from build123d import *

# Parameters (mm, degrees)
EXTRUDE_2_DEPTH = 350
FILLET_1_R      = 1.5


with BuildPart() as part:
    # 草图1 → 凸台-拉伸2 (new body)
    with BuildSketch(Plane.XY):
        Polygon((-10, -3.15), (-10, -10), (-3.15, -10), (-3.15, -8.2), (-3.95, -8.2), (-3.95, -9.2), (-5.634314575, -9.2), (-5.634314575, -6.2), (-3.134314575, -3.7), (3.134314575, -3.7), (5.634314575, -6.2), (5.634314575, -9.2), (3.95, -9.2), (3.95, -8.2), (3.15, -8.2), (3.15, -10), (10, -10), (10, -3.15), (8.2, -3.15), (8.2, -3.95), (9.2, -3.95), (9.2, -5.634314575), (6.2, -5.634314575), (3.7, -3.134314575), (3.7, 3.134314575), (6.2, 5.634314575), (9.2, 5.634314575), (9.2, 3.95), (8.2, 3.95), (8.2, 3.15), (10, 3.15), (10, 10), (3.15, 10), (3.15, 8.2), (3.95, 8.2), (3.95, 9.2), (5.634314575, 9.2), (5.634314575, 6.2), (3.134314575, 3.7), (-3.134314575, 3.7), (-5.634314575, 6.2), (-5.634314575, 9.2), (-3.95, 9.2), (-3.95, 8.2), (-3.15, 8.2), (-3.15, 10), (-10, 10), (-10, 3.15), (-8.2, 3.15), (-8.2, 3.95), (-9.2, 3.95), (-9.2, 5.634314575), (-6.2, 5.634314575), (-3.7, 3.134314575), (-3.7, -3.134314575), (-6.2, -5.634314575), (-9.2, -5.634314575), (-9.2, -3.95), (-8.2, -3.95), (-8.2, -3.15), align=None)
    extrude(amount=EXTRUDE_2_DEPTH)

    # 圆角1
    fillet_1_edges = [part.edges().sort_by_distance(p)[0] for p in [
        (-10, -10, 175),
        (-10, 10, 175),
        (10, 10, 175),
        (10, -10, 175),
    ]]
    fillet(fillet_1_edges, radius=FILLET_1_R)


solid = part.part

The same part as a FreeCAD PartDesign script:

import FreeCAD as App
import Part
import Sketcher

V = App.Vector


def edges_at(feature, points):
    """Names of the edges that pass closest to the given points."""
    edges = feature.Shape.Edges
    near = lambda p: min(range(len(edges)), key=lambda i: edges[i].distToShape(Part.Vertex(*p))[0])
    return sorted({f"Edge{near(p) + 1}" for p in points})

doc = App.newDocument("Part")
body = doc.addObject("PartDesign::Body", "Body")

# Sketch on XY plane
sketch1 = body.newObject("Sketcher::SketchObject", "Sketch")
sketch1.AttachmentSupport = (doc.getObject("XY_Plane"), [""])
sketch1.MapMode = "FlatFace"
sketch1.addGeometry(Part.LineSegment(V(-10, -3.15, 0), V(-10, -10, 0)), False)
sketch1.addGeometry(Part.LineSegment(V(-10, -10, 0), V(-3.15, -10, 0)), False)
sketch1.addGeometry(Part.LineSegment(V(-3.15, -10, 0), V(-3.15, -8.2, 0)), False)
sketch1.addGeometry(Part.LineSegment(V(-3.15, -8.2, 0), V(-3.95, -8.2, 0)), False)
sketch1.addGeometry(Part.LineSegment(V(-3.95, -8.2, 0), V(-3.95, -9.2, 0)), False)
sketch1.addGeometry(Part.LineSegment(V(-3.95, -9.2, 0), V(-5.634315, -9.2, 0)), False)
sketch1.addGeometry(Part.LineSegment(V(-5.634315, -9.2, 0), V(-5.634315, -6.2, 0)), False)
sketch1.addGeometry(Part.LineSegment(V(-5.634315, -6.2, 0), V(-3.134315, -3.7, 0)), False)
sketch1.addGeometry(Part.LineSegment(V(-3.134315, -3.7, 0), V(3.134315, -3.7, 0)), False)
sketch1.addGeometry(Part.LineSegment(V(3.134315, -3.7, 0), V(5.634315, -6.2, 0)), False)
sketch1.addGeometry(Part.LineSegment(V(5.634315, -6.2, 0), V(5.634315, -9.2, 0)), False)
sketch1.addGeometry(Part.LineSegment(V(5.634315, -9.2, 0), V(3.95, -9.2, 0)), False)
sketch1.addGeometry(Part.LineSegment(V(3.95, -9.2, 0), V(3.95, -8.2, 0)), False)
sketch1.addGeometry(Part.LineSegment(V(3.95, -8.2, 0), V(3.15, -8.2, 0)), False)
sketch1.addGeometry(Part.LineSegment(V(3.15, -8.2, 0), V(3.15, -10, 0)), False)
sketch1.addGeometry(Part.LineSegment(V(3.15, -10, 0), V(10, -10, 0)), False)
sketch1.addGeometry(Part.LineSegment(V(10, -10, 0), V(10, -3.15, 0)), False)
sketch1.addGeometry(Part.LineSegment(V(10, -3.15, 0), V(8.2, -3.15, 0)), False)
sketch1.addGeometry(Part.LineSegment(V(8.2, -3.15, 0), V(8.2, -3.95, 0)), False)
sketch1.addGeometry(Part.LineSegment(V(8.2, -3.95, 0), V(9.2, -3.95, 0)), False)
sketch1.addGeometry(Part.LineSegment(V(9.2, -3.95, 0), V(9.2, -5.634315, 0)), False)
sketch1.addGeometry(Part.LineSegment(V(9.2, -5.634315, 0), V(6.2, -5.634315, 0)), False)
sketch1.addGeometry(Part.LineSegment(V(6.2, -5.634315, 0), V(3.7, -3.134315, 0)), False)
sketch1.addGeometry(Part.LineSegment(V(3.7, -3.134315, 0), V(3.7, 3.134315, 0)), False)
sketch1.addGeometry(Part.LineSegment(V(3.7, 3.134315, 0), V(6.2, 5.634315, 0)), False)
sketch1.addGeometry(Part.LineSegment(V(6.2, 5.634315, 0), V(9.2, 5.634315, 0)), False)
sketch1.addGeometry(Part.LineSegment(V(9.2, 5.634315, 0), V(9.2, 3.95, 0)), False)
sketch1.addGeometry(Part.LineSegment(V(9.2, 3.95, 0), V(8.2, 3.95, 0)), False)
sketch1.addGeometry(Part.LineSegment(V(8.2, 3.95, 0), V(8.2, 3.15, 0)), False)
sketch1.addGeometry(Part.LineSegment(V(8.2, 3.15, 0), V(10, 3.15, 0)), False)
sketch1.addGeometry(Part.LineSegment(V(10, 3.15, 0), V(10, 10, 0)), False)
sketch1.addGeometry(Part.LineSegment(V(10, 10, 0), V(3.15, 10, 0)), False)
sketch1.addGeometry(Part.LineSegment(V(3.15, 10, 0), V(3.15, 8.2, 0)), False)
sketch1.addGeometry(Part.LineSegment(V(3.15, 8.2, 0), V(3.95, 8.2, 0)), False)
sketch1.addGeometry(Part.LineSegment(V(3.95, 8.2, 0), V(3.95, 9.2, 0)), False)
sketch1.addGeometry(Part.LineSegment(V(3.95, 9.2, 0), V(5.634315, 9.2, 0)), False)
sketch1.addGeometry(Part.LineSegment(V(5.634315, 9.2, 0), V(5.634315, 6.2, 0)), False)
sketch1.addGeometry(Part.LineSegment(V(5.634315, 6.2, 0), V(3.134315, 3.7, 0)), False)
sketch1.addGeometry(Part.LineSegment(V(3.134315, 3.7, 0), V(-3.134315, 3.7, 0)), False)
sketch1.addGeometry(Part.LineSegment(V(-3.134315, 3.7, 0), V(-5.634315, 6.2, 0)), False)
sketch1.addGeometry(Part.LineSegment(V(-5.634315, 6.2, 0), V(-5.634315, 9.2, 0)), False)
sketch1.addGeometry(Part.LineSegment(V(-5.634315, 9.2, 0), V(-3.95, 9.2, 0)), False)
sketch1.addGeometry(Part.LineSegment(V(-3.95, 9.2, 0), V(-3.95, 8.2, 0)), False)
sketch1.addGeometry(Part.LineSegment(V(-3.95, 8.2, 0), V(-3.15, 8.2, 0)), False)
sketch1.addGeometry(Part.LineSegment(V(-3.15, 8.2, 0), V(-3.15, 10, 0)), False)
sketch1.addGeometry(Part.LineSegment(V(-3.15, 10, 0), V(-10, 10, 0)), False)
sketch1.addGeometry(Part.LineSegment(V(-10, 10, 0), V(-10, 3.15, 0)), False)
sketch1.addGeometry(Part.LineSegment(V(-10, 3.15, 0), V(-8.2, 3.15, 0)), False)
sketch1.addGeometry(Part.LineSegment(V(-8.2, 3.15, 0), V(-8.2, 3.95, 0)), False)
sketch1.addGeometry(Part.LineSegment(V(-8.2, 3.95, 0), V(-9.2, 3.95, 0)), False)
sketch1.addGeometry(Part.LineSegment(V(-9.2, 3.95, 0), V(-9.2, 5.634315, 0)), False)
sketch1.addGeometry(Part.LineSegment(V(-9.2, 5.634315, 0), V(-6.2, 5.634315, 0)), False)
sketch1.addGeometry(Part.LineSegment(V(-6.2, 5.634315, 0), V(-3.7, 3.134315, 0)), False)
sketch1.addGeometry(Part.LineSegment(V(-3.7, 3.134315, 0), V(-3.7, -3.134315, 0)), False)
sketch1.addGeometry(Part.LineSegment(V(-3.7, -3.134315, 0), V(-6.2, -5.634315, 0)), False)
sketch1.addGeometry(Part.LineSegment(V(-6.2, -5.634315, 0), V(-9.2, -5.634315, 0)), False)
sketch1.addGeometry(Part.LineSegment(V(-9.2, -5.634315, 0), V(-9.2, -3.95, 0)), False)
sketch1.addGeometry(Part.LineSegment(V(-9.2, -3.95, 0), V(-8.2, -3.95, 0)), False)
sketch1.addGeometry(Part.LineSegment(V(-8.2, -3.95, 0), V(-8.2, -3.15, 0)), False)
sketch1.addGeometry(Part.LineSegment(V(-8.2, -3.15, 0), V(-10, -3.15, 0)), False)
sketch1.addConstraint(Sketcher.Constraint("Coincident", 0, 2, 1, 1))
sketch1.addConstraint(Sketcher.Constraint("Coincident", 1, 2, 2, 1))
sketch1.addConstraint(Sketcher.Constraint("Coincident", 2, 2, 3, 1))
sketch1.addConstraint(Sketcher.Constraint("Coincident", 3, 2, 4, 1))
sketch1.addConstraint(Sketcher.Constraint("Coincident", 4, 2, 5, 1))
sketch1.addConstraint(Sketcher.Constraint("Coincident", 5, 2, 6, 1))
sketch1.addConstraint(Sketcher.Constraint("Coincident", 6, 2, 7, 1))
sketch1.addConstraint(Sketcher.Constraint("Coincident", 7, 2, 8, 1))
sketch1.addConstraint(Sketcher.Constraint("Coincident", 8, 2, 9, 1))
sketch1.addConstraint(Sketcher.Constraint("Coincident", 9, 2, 10, 1))
sketch1.addConstraint(Sketcher.Constraint("Coincident", 10, 2, 11, 1))
sketch1.addConstraint(Sketcher.Constraint("Coincident", 11, 2, 12, 1))
sketch1.addConstraint(Sketcher.Constraint("Coincident", 12, 2, 13, 1))
sketch1.addConstraint(Sketcher.Constraint("Coincident", 13, 2, 14, 1))
sketch1.addConstraint(Sketcher.Constraint("Coincident", 14, 2, 15, 1))
sketch1.addConstraint(Sketcher.Constraint("Coincident", 15, 2, 16, 1))
sketch1.addConstraint(Sketcher.Constraint("Coincident", 16, 2, 17, 1))
sketch1.addConstraint(Sketcher.Constraint("Coincident", 17, 2, 18, 1))
sketch1.addConstraint(Sketcher.Constraint("Coincident", 18, 2, 19, 1))
sketch1.addConstraint(Sketcher.Constraint("Coincident", 19, 2, 20, 1))
sketch1.addConstraint(Sketcher.Constraint("Coincident", 20, 2, 21, 1))
sketch1.addConstraint(Sketcher.Constraint("Coincident", 21, 2, 22, 1))
sketch1.addConstraint(Sketcher.Constraint("Coincident", 22, 2, 23, 1))
sketch1.addConstraint(Sketcher.Constraint("Coincident", 23, 2, 24, 1))
sketch1.addConstraint(Sketcher.Constraint("Coincident", 24, 2, 25, 1))
sketch1.addConstraint(Sketcher.Constraint("Coincident", 25, 2, 26, 1))
sketch1.addConstraint(Sketcher.Constraint("Coincident", 26, 2, 27, 1))
sketch1.addConstraint(Sketcher.Constraint("Coincident", 27, 2, 28, 1))
sketch1.addConstraint(Sketcher.Constraint("Coincident", 28, 2, 29, 1))
sketch1.addConstraint(Sketcher.Constraint("Coincident", 29, 2, 30, 1))
sketch1.addConstraint(Sketcher.Constraint("Coincident", 30, 2, 31, 1))
sketch1.addConstraint(Sketcher.Constraint("Coincident", 31, 2, 32, 1))
sketch1.addConstraint(Sketcher.Constraint("Coincident", 32, 2, 33, 1))
sketch1.addConstraint(Sketcher.Constraint("Coincident", 33, 2, 34, 1))
sketch1.addConstraint(Sketcher.Constraint("Coincident", 34, 2, 35, 1))
sketch1.addConstraint(Sketcher.Constraint("Coincident", 35, 2, 36, 1))
sketch1.addConstraint(Sketcher.Constraint("Coincident", 36, 2, 37, 1))
sketch1.addConstraint(Sketcher.Constraint("Coincident", 37, 2, 38, 1))
sketch1.addConstraint(Sketcher.Constraint("Coincident", 38, 2, 39, 1))
sketch1.addConstraint(Sketcher.Constraint("Coincident", 39, 2, 40, 1))
sketch1.addConstraint(Sketcher.Constraint("Coincident", 40, 2, 41, 1))
sketch1.addConstraint(Sketcher.Constraint("Coincident", 41, 2, 42, 1))
sketch1.addConstraint(Sketcher.Constraint("Coincident", 42, 2, 43, 1))
sketch1.addConstraint(Sketcher.Constraint("Coincident", 43, 2, 44, 1))
sketch1.addConstraint(Sketcher.Constraint("Coincident", 44, 2, 45, 1))
sketch1.addConstraint(Sketcher.Constraint("Coincident", 45, 2, 46, 1))
sketch1.addConstraint(Sketcher.Constraint("Coincident", 46, 2, 47, 1))
sketch1.addConstraint(Sketcher.Constraint("Coincident", 47, 2, 48, 1))
sketch1.addConstraint(Sketcher.Constraint("Coincident", 48, 2, 49, 1))
sketch1.addConstraint(Sketcher.Constraint("Coincident", 49, 2, 50, 1))
sketch1.addConstraint(Sketcher.Constraint("Coincident", 50, 2, 51, 1))
sketch1.addConstraint(Sketcher.Constraint("Coincident", 51, 2, 52, 1))
sketch1.addConstraint(Sketcher.Constraint("Coincident", 52, 2, 53, 1))
sketch1.addConstraint(Sketcher.Constraint("Coincident", 53, 2, 54, 1))
sketch1.addConstraint(Sketcher.Constraint("Coincident", 54, 2, 55, 1))
sketch1.addConstraint(Sketcher.Constraint("Coincident", 55, 2, 56, 1))
sketch1.addConstraint(Sketcher.Constraint("Coincident", 56, 2, 57, 1))
sketch1.addConstraint(Sketcher.Constraint("Coincident", 57, 2, 58, 1))
sketch1.addConstraint(Sketcher.Constraint("Coincident", 58, 2, 59, 1))
sketch1.addConstraint(Sketcher.Constraint("Coincident", 59, 2, 0, 1))
sketch1.addConstraint(Sketcher.Constraint("Vertical", 0))
sketch1.addConstraint(Sketcher.Constraint("Horizontal", 1))
sketch1.addConstraint(Sketcher.Constraint("Vertical", 2))
sketch1.addConstraint(Sketcher.Constraint("Horizontal", 3))
sketch1.addConstraint(Sketcher.Constraint("Vertical", 4))
sketch1.addConstraint(Sketcher.Constraint("Horizontal", 5))
sketch1.addConstraint(Sketcher.Constraint("Vertical", 6))
sketch1.addConstraint(Sketcher.Constraint("Horizontal", 8))
sketch1.addConstraint(Sketcher.Constraint("Vertical", 10))
sketch1.addConstraint(Sketcher.Constraint("Horizontal", 11))
sketch1.addConstraint(Sketcher.Constraint("Vertical", 12))
sketch1.addConstraint(Sketcher.Constraint("Horizontal", 13))
sketch1.addConstraint(Sketcher.Constraint("Vertical", 14))
sketch1.addConstraint(Sketcher.Constraint("Horizontal", 15))
sketch1.addConstraint(Sketcher.Constraint("Vertical", 16))
sketch1.addConstraint(Sketcher.Constraint("Horizontal", 17))
sketch1.addConstraint(Sketcher.Constraint("Vertical", 18))
sketch1.addConstraint(Sketcher.Constraint("Horizontal", 19))
sketch1.addConstraint(Sketcher.Constraint("Vertical", 20))
sketch1.addConstraint(Sketcher.Constraint("Horizontal", 21))
sketch1.addConstraint(Sketcher.Constraint("Vertical", 23))
sketch1.addConstraint(Sketcher.Constraint("Horizontal", 25))
sketch1.addConstraint(Sketcher.Constraint("Vertical", 26))
sketch1.addConstraint(Sketcher.Constraint("Horizontal", 27))
sketch1.addConstraint(Sketcher.Constraint("Vertical", 28))
sketch1.addConstraint(Sketcher.Constraint("Horizontal", 29))
sketch1.addConstraint(Sketcher.Constraint("Vertical", 30))
sketch1.addConstraint(Sketcher.Constraint("Horizontal", 31))
sketch1.addConstraint(Sketcher.Constraint("Vertical", 32))
sketch1.addConstraint(Sketcher.Constraint("Horizontal", 33))
sketch1.addConstraint(Sketcher.Constraint("Vertical", 34))
sketch1.addConstraint(Sketcher.Constraint("Horizontal", 35))
sketch1.addConstraint(Sketcher.Constraint("Vertical", 36))
sketch1.addConstraint(Sketcher.Constraint("Horizontal", 38))
sketch1.addConstraint(Sketcher.Constraint("Vertical", 40))
sketch1.addConstraint(Sketcher.Constraint("Horizontal", 41))
sketch1.addConstraint(Sketcher.Constraint("Vertical", 42))
sketch1.addConstraint(Sketcher.Constraint("Horizontal", 43))
sketch1.addConstraint(Sketcher.Constraint("Vertical", 44))
sketch1.addConstraint(Sketcher.Constraint("Horizontal", 45))
sketch1.addConstraint(Sketcher.Constraint("Vertical", 46))
sketch1.addConstraint(Sketcher.Constraint("Horizontal", 47))
sketch1.addConstraint(Sketcher.Constraint("Vertical", 48))
sketch1.addConstraint(Sketcher.Constraint("Horizontal", 49))
sketch1.addConstraint(Sketcher.Constraint("Vertical", 50))
sketch1.addConstraint(Sketcher.Constraint("Horizontal", 51))
sketch1.addConstraint(Sketcher.Constraint("Vertical", 53))
sketch1.addConstraint(Sketcher.Constraint("Horizontal", 55))
sketch1.addConstraint(Sketcher.Constraint("Vertical", 56))
sketch1.addConstraint(Sketcher.Constraint("Horizontal", 57))
sketch1.addConstraint(Sketcher.Constraint("Vertical", 58))
sketch1.addConstraint(Sketcher.Constraint("Horizontal", 59))
sketch1.addConstraint(Sketcher.Constraint("Symmetric", 0, 2, 30, 2, -1, 1))
sketch1.addConstraint(Sketcher.Constraint("Symmetric", 2, 2, 32, 2, -1, 1))
sketch1.addConstraint(Sketcher.Constraint("Symmetric", 4, 2, 34, 2, -1, 1))
sketch1.addConstraint(Sketcher.Constraint("Symmetric", 6, 2, 36, 2, -1, 1))
sketch1.addConstraint(Sketcher.Constraint("Symmetric", 7, 2, 37, 2, -1, 1))
sketch1.addConstraint(Sketcher.Constraint("Symmetric", 9, 2, 39, 2, -1, 1))
sketch1.addConstraint(Sketcher.Constraint("Symmetric", 11, 2, 41, 2, -1, 1))
sketch1.addConstraint(Sketcher.Constraint("Symmetric", 13, 2, 43, 2, -1, 1))
sketch1.addConstraint(Sketcher.Constraint("Symmetric", 15, 2, 45, 2, -1, 1))
sketch1.addConstraint(Sketcher.Constraint("Symmetric", 17, 2, 47, 2, -1, 1))
sketch1.addConstraint(Sketcher.Constraint("Symmetric", 19, 2, 49, 2, -1, 1))
sketch1.addConstraint(Sketcher.Constraint("Symmetric", 21, 2, 51, 2, -1, 1))
sketch1.addConstraint(Sketcher.Constraint("Symmetric", 22, 2, 52, 2, -1, 1))
sketch1.addConstraint(Sketcher.Constraint("Symmetric", 24, 2, 54, 2, -1, 1))
sketch1.addConstraint(Sketcher.Constraint("Symmetric", 26, 2, 56, 2, -1, 1))
sketch1.addConstraint(Sketcher.Constraint("Symmetric", 28, 2, 58, 2, -1, 1))
sketch1.addConstraint(Sketcher.Constraint("Symmetric", 6, 2, 9, 2, -2))
sketch1.addConstraint(Sketcher.Constraint("Symmetric", 4, 2, 11, 2, -2))
sketch1.addConstraint(Sketcher.Constraint("Symmetric", 2, 2, 13, 2, -2))
sketch1.addConstraint(Sketcher.Constraint("Symmetric", 0, 2, 15, 2, -2))
sketch1.addConstraint(Sketcher.Constraint("Symmetric", 28, 2, 47, 2, -2))
sketch1.addConstraint(Sketcher.Constraint("Symmetric", 26, 2, 49, 2, -2))
sketch1.addConstraint(Sketcher.Constraint("Symmetric", 24, 2, 51, 2, -2))
sketch1.addConstraint(Sketcher.Constraint("Perpendicular", 7, 9))
sketch1.addConstraint(Sketcher.Constraint("Parallel", 9, 22))
sketch1.addConstraint(Sketcher.Constraint("Perpendicular", 22, 24))
sketch1.addConstraint(Sketcher.Constraint("Perpendicular", 37, 39))
sketch1.addConstraint(Sketcher.Constraint("Perpendicular", 52, 54))
sketch1.addConstraint(Sketcher.Constraint("Horizontal", 23, 2, 52, 2))
sketch1.addConstraint(Sketcher.Constraint("Equal", 45, 0))
sketch1.addConstraint(Sketcher.Constraint("Equal", 59, 2))
sketch1.addConstraint(Sketcher.Constraint("Equal", 57, 4))
sketch1.addConstraint(Sketcher.Constraint("Equal", 55, 6))
sketch1.addConstraint(Sketcher.Constraint("Equal", 43, 18))
sketch1.addConstraint(Sketcher.Constraint("Equal", 41, 20))
sketch1.addConstraint(Sketcher.Constraint("Equal", 38, 23))
sketch1.addConstraint(Sketcher.Constraint("Equal", 9, 22))
sketch1.addConstraint(Sketcher.Constraint("DistanceX", 19, 1, 19, 2, 1.0))
sketch1.addConstraint(Sketcher.Constraint("DistanceX", 21, 2, 21, 1, 3.0))
sketch1.addConstraint(Sketcher.Constraint("DistanceX", 3, 2, 3, 1, 0.8))
sketch1.addConstraint(Sketcher.Constraint("DistanceX", 17, 2, 17, 1, 1.8))
sketch1.addConstraint(Sketcher.Constraint("DistanceX", 0, 2, -1, 1, 10.0))
sketch1.addConstraint(Sketcher.Constraint("DistanceX", 1, 1, 1, 2, 6.85))
sketch1.addConstraint(Sketcher.Constraint("DistanceY", 7, 2, -1, 1, 3.7))
sketch1.addConstraint(Sketcher.Constraint("DistanceX", 8, 1, 8, 2, 6.268629))
pad1 = body.newObject("PartDesign::Pad", "Pad")
pad1.Profile = sketch1
pad1.Length = 350
doc.recompute()

fillet = body.newObject("PartDesign::Fillet", "Fillet")
fillet.Base = (pad1, edges_at(pad1, [
    (-10, -10, 175),
    (-10, 10, 175),
    (10, 10, 175),
    (10, -10, 175),
]))
fillet.Radius = 1.5

doc.recompute()
